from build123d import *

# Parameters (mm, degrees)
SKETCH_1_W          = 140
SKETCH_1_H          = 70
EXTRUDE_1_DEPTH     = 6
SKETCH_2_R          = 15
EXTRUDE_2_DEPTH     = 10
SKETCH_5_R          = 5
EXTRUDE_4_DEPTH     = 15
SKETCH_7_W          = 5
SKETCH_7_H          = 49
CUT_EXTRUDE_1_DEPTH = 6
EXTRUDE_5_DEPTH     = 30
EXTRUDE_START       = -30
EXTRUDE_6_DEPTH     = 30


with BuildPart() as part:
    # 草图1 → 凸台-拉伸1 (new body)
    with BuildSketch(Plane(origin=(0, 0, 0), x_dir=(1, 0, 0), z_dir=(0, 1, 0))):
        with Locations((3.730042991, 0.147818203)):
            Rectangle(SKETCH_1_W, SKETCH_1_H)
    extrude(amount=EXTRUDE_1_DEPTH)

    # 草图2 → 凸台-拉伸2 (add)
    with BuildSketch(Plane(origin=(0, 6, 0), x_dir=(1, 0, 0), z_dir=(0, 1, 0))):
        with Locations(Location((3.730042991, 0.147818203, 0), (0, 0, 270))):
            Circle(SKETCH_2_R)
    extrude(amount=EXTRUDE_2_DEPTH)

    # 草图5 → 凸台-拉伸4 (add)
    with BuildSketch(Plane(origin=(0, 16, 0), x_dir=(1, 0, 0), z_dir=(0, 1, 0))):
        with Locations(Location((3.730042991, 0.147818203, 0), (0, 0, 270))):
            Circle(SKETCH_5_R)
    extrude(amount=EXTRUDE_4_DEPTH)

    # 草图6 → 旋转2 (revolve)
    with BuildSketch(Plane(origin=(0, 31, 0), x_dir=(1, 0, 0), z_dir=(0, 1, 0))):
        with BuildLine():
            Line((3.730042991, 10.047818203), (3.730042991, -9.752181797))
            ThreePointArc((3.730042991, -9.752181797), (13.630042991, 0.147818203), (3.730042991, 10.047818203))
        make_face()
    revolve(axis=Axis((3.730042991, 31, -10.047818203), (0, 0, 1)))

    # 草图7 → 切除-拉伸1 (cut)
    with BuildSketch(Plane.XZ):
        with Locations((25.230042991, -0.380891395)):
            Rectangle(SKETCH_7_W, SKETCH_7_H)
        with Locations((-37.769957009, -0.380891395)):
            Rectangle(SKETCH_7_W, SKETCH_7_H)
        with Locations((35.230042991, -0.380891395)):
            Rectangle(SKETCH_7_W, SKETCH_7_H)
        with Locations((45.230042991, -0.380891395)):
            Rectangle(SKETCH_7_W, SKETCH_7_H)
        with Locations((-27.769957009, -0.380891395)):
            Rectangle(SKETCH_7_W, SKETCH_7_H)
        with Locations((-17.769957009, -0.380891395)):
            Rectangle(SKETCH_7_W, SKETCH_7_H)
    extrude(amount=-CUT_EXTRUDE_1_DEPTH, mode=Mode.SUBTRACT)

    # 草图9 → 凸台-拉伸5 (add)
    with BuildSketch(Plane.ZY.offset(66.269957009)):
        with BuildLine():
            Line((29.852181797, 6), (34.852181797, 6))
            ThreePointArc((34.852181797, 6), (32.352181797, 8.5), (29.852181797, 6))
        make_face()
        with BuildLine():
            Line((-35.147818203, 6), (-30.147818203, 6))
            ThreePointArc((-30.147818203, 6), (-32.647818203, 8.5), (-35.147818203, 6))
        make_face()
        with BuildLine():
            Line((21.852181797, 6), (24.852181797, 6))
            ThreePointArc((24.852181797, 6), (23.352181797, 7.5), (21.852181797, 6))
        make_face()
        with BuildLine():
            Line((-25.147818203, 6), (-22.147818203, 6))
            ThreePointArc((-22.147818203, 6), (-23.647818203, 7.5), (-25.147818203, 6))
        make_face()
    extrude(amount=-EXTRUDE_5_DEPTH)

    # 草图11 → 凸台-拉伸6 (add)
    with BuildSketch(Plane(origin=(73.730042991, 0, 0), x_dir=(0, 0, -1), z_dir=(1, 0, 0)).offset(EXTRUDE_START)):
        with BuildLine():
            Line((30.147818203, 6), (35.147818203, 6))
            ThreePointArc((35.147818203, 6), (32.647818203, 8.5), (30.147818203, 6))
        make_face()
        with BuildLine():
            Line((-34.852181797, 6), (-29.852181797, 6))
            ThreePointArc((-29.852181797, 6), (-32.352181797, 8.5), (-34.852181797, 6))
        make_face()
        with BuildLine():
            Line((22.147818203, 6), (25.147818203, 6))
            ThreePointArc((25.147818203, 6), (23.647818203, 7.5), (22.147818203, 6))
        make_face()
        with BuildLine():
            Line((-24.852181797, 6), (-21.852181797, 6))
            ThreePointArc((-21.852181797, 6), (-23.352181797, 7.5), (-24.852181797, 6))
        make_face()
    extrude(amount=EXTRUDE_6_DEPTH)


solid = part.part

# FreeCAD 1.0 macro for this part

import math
import FreeCAD as App
import Part
import Sketcher

V = App.Vector


def add_polygon(sketch, points):
    """Adds a closed chain of lines whose ends are joined by coincident constraints."""
    first, n = sketch.GeometryCount, len(points)
    for a, b in zip(points, points[1:] + points[:1]):
        sketch.addGeometry(Part.LineSegment(App.Vector(*a, 0), App.Vector(*b, 0)), False)
    for i in range(n):
        sketch.addConstraint(Sketcher.Constraint("Coincident", first + i, 2, first + (i + 1) % n, 1))

doc = App.newDocument("Part")
body = doc.addObject("PartDesign::Body", "Body")

# Sketch on XZ plane
sketch1 = body.newObject("Sketcher::SketchObject", "Sketch")
sketch1.AttachmentSupport = (doc.getObject("XZ_Plane"), [""])
sketch1.MapMode = "FlatFace"
add_polygon(sketch1, [(-66, -35), (-66, 35), (74, 35), (74, -35)])  # lines 0-3
sketch1.addConstraint(Sketcher.Constraint("Vertical", 0))
sketch1.addConstraint(Sketcher.Constraint("Horizontal", 1))
sketch1.addConstraint(Sketcher.Constraint("Vertical", 2))
sketch1.addConstraint(Sketcher.Constraint("Horizontal", 3))
sketch1.addConstraint(Sketcher.Constraint("DistanceX", 1, 1, 1, 2, 140.0))
sketch1.addConstraint(Sketcher.Constraint("DistanceY", 0, 1, 0, 2, 70.0))
sketch1.addConstraint(Sketcher.Constraint("DistanceY", -1, 1, 0, 2, 34.852182))
sketch1.addConstraint(Sketcher.Constraint("DistanceX", 0, 2, -1, 1, 66.269957))
pad1 = body.newObject("PartDesign::Pad", "Pad")
pad1.Profile = sketch1
pad1.Length = 6
pad1.Reversed = True

# Sketch on XZ plane
sketch2 = body.newObject("Sketcher::SketchObject", "Sketch001")
sketch2.AttachmentSupport = (doc.getObject("XZ_Plane"), [""])
sketch2.MapMode = "FlatFace"
sketch2.AttachmentOffset = App.Placement(V(0, 0, -6), App.Rotation())
sketch2.addGeometry(Part.Circle(V(4, 0, 0), V(0, 0, 1), 15), False)
sketch2.addConstraint(Sketcher.Constraint("Diameter", 0, 30.0))
sketch2.addConstraint(Sketcher.Constraint("DistanceY", 0, 3, -1, 1, 0.147818))
sketch2.addConstraint(Sketcher.Constraint("DistanceX", -1, 1, 0, 3, 3.730043))
pad2 = body.newObject("PartDesign::Pad", "Pad001")
pad2.Profile = sketch2
pad2.Length = 10
pad2.Reversed = True

# Sketch on XZ plane
sketch3 = body.newObject("Sketcher::SketchObject", "Sketch002")
sketch3.AttachmentSupport = (doc.getObject("XZ_Plane"), [""])
sketch3.MapMode = "FlatFace"
sketch3.AttachmentOffset = App.Placement(V(0, 0, -16), App.Rotation())
sketch3.addGeometry(Part.Circle(V(4, 0, 0), V(0, 0, 1), 5), False)
sketch3.addConstraint(Sketcher.Constraint("Diameter", 0, 10.0))
sketch3.addConstraint(Sketcher.Constraint("DistanceY", 0, 3, -1, 1, 0.147818))
sketch3.addConstraint(Sketcher.Constraint("DistanceX", -1, 1, 0, 3, 3.730043))
pad3 = body.newObject("PartDesign::Pad", "Pad002")
pad3.Profile = sketch3
pad3.Length = 15
pad3.Reversed = True

# Sketch on XZ plane
sketch4 = body.newObject("Sketcher::SketchObject", "Sketch003")
sketch4.AttachmentSupport = (doc.getObject("XZ_Plane"), [""])
sketch4.MapMode = "FlatFace"
sketch4.AttachmentOffset = App.Placement(V(0, 0, -31), App.Rotation())
sketch4.addGeometry(Part.LineSegment(V(4, -10, 0), V(4, 10, 0)), False)
sketch4.addGeometry(Part.ArcOfCircle(Part.Circle(V(4, 0, 0), V(0, 0, 1), 10), math.radians(-90), math.radians(90)), False)
sketch4.addGeometry(Part.LineSegment(V(4, -10, 0), V(4, 10, 0)), True)  # axis
sketch4.addConstraint(Sketcher.Constraint("Coincident", 0, 1, 1, 1))
sketch4.addConstraint(Sketcher.Constraint("Coincident", 1, 2, 0, 2))
sketch4.addConstraint(Sketcher.Constraint("Vertical", 0))
sketch4.addConstraint(Sketcher.Constraint("Vertical", 2))
sketch4.addConstraint(Sketcher.Constraint("Coincident", 2, 1, 0, 1))
sketch4.addConstraint(Sketcher.Constraint("Vertical", 1, 3, 0, 1))
sketch4.addConstraint(Sketcher.Constraint("Equal", 0, 2))
sketch4.addConstraint(Sketcher.Constraint("Radius", 1, 9.9))
sketch4.addConstraint(Sketcher.Constraint("DistanceY", 1, 3, -1, 1, 0.147818))
sketch4.addConstraint(Sketcher.Constraint("DistanceX", -1, 1, 1, 3, 3.730043))
revolution = body.newObject("PartDesign::Revolution", "Revolution")
revolution.Profile = sketch4
revolution.ReferenceAxis = (sketch4, ["Axis0"])
revolution.Angle = 360

# Sketch on XZ plane
sketch5 = body.newObject("Sketcher::SketchObject", "Sketch004")
sketch5.AttachmentSupport = (doc.getObject("XZ_Plane"), [""])
sketch5.MapMode = "FlatFace"
add_polygon(sketch5, [(22.7, 24.1), (22.7, -24.9), (27.7, -24.9), (27.7, 24.1)])  # lines 0-3
add_polygon(sketch5, [(-40.3, 24.1), (-40.3, -24.9), (-35.3, -24.9), (-35.3, 24.1)])  # lines 4-7
add_polygon(sketch5, [(32.7, 24.1), (32.7, -24.9), (37.7, -24.9), (37.7, 24.1)])  # lines 8-11
add_polygon(sketch5, [(42.7, 24.1), (42.7, -24.9), (47.7, -24.9), (47.7, 24.1)])  # lines 12-15
add_polygon(sketch5, [(-30.3, 24.1), (-30.3, -24.9), (-25.3, -24.9), (-25.3, 24.1)])  # lines 16-19
add_polygon(sketch5, [(-20.3, 24.1), (-20.3, -24.9), (-15.3, -24.9), (-15.3, 24.1)])  # lines 20-23
sketch5.addConstraint(Sketcher.Constraint("Vertical", 0))
sketch5.addConstraint(Sketcher.Constraint("Horizontal", 1))
sketch5.addConstraint(Sketcher.Constraint("Vertical", 2))
sketch5.addConstraint(Sketcher.Constraint("Horizontal", 3))
sketch5.addConstraint(Sketcher.Constraint("Vertical", 4))
sketch5.addConstraint(Sketcher.Constraint("Horizontal", 5))
sketch5.addConstraint(Sketcher.Constraint("Vertical", 6))
sketch5.addConstraint(Sketcher.Constraint("Horizontal", 7))
sketch5.addConstraint(Sketcher.Constraint("Vertical", 8))
sketch5.addConstraint(Sketcher.Constraint("Horizontal", 9))
sketch5.addConstraint(Sketcher.Constraint("Vertical", 10))
sketch5.addConstraint(Sketcher.Constraint("Horizontal", 11))
sketch5.addConstraint(Sketcher.Constraint("Vertical", 12))
sketch5.addConstraint(Sketcher.Constraint("Horizontal", 13))
sketch5.addConstraint(Sketcher.Constraint("Vertical", 14))
sketch5.addConstraint(Sketcher.Constraint("Horizontal", 15))
sketch5.addConstraint(Sketcher.Constraint("Vertical", 16))
sketch5.addConstraint(Sketcher.Constraint("Horizontal", 17))
sketch5.addConstraint(Sketcher.Constraint("Vertical", 18))
sketch5.addConstraint(Sketcher.Constraint("Horizontal", 19))
sketch5.addConstraint(Sketcher.Constraint("Vertical", 20))
sketch5.addConstraint(Sketcher.Constraint("Horizontal", 21))
sketch5.addConstraint(Sketcher.Constraint("Vertical", 22))
sketch5.addConstraint(Sketcher.Constraint("Horizontal", 23))
sketch5.addConstraint(Sketcher.Constraint("Horizontal", 1, 2, 4, 2))
sketch5.addConstraint(Sketcher.Constraint("Horizontal", 3, 2, 6, 2))
sketch5.addConstraint(Sketcher.Constraint("Horizontal", 5, 2, 8, 2))
sketch5.addConstraint(Sketcher.Constraint("Horizontal", 7, 2, 10, 2))
sketch5.addConstraint(Sketcher.Constraint("Horizontal", 9, 2, 12, 2))
sketch5.addConstraint(Sketcher.Constraint("Horizontal", 11, 2, 14, 2))
sketch5.addConstraint(Sketcher.Constraint("Horizontal", 13, 2, 16, 2))
sketch5.addConstraint(Sketcher.Constraint("Horizontal", 15, 2, 18, 2))
sketch5.addConstraint(Sketcher.Constraint("Horizontal", 17, 2, 20, 2))
sketch5.addConstraint(Sketcher.Constraint("Horizontal", 19, 2, 22, 2))
sketch5.addConstraint(Sketcher.Constraint("Equal", 3, 5))
sketch5.addConstraint(Sketcher.Constraint("Equal", 7, 9))
sketch5.addConstraint(Sketcher.Constraint("Equal", 11, 13))
sketch5.addConstraint(Sketcher.Constraint("Equal", 15, 17))
sketch5.addConstraint(Sketcher.Constraint("Equal", 19, 21))
sketch5.addConstraint(Sketcher.Constraint("DistanceX", 1, 1, 1, 2, 5.0))
sketch5.addConstraint(Sketcher.Constraint("DistanceY", 0, 2, 0, 1, 49.0))
sketch5.addConstraint(Sketcher.Constraint("DistanceX", 4, 2, 0, 2, 63.0))
sketch5.addConstraint(Sketcher.Constraint("DistanceX", 1, 2, 8, 2, 5.0))
sketch5.addConstraint(Sketcher.Constraint("DistanceX", 9, 2, 12, 2, 5.0))
sketch5.addConstraint(Sketcher.Constraint("DistanceX", 5, 2, 16, 2, 5.0))
sketch5.addConstraint(Sketcher.Constraint("DistanceX", 17, 2, 20, 2, 5.0))
sketch5.addConstraint(Sketcher.Constraint("DistanceY", 0, 2, -1, 1, 24.880891))
sketch5.addConstraint(Sketcher.Constraint("DistanceX", -1, 1, 0, 2, 22.730043))
pocket1 = body.newObject("PartDesign::Pocket", "Pocket")
pocket1.Profile = sketch5
pocket1.Length = 6

# Sketch on YZ plane
sketch6 = body.newObject("Sketcher::SketchObject", "Sketch005")
sketch6.AttachmentSupport = (doc.getObject("YZ_Plane"), [""])
sketch6.MapMode = "FlatFace"
sketch6.AttachmentOffset = App.Placement(V(0, 0, -66.269957), App.Rotation())
sketch6.addGeometry(Part.LineSegment(V(6, 29.9, 0), V(6, 34.9, 0)), False)
sketch6.addGeometry(Part.ArcOfCircle(Part.Circle(V(6, 32.4, 0), V(0, 0, 1), 2.5), math.radians(-90), math.radians(90)), False)
sketch6.addGeometry(Part.LineSegment(V(6, -35.1, 0), V(6, -30.1, 0)), False)
sketch6.addGeometry(Part.ArcOfCircle(Part.Circle(V(6, -32.6, 0), V(0, 0, 1), 2.5), math.radians(-90), math.radians(90)), False)
sketch6.addGeometry(Part.LineSegment(V(6, 21.9, 0), V(6, 24.9, 0)), False)
sketch6.addGeometry(Part.ArcOfCircle(Part.Circle(V(6, 23.4, 0), V(0, 0, 1), 1.5), math.radians(-90), math.radians(90)), False)
sketch6.addGeometry(Part.LineSegment(V(6, -25.1, 0), V(6, -22.1, 0)), False)
sketch6.addGeometry(Part.ArcOfCircle(Part.Circle(V(6, -23.6, 0), V(0, 0, 1), 1.5), math.radians(-90), math.radians(90)), False)
sketch6.addConstraint(Sketcher.Constraint("Coincident", 0, 1, 1, 1))
sketch6.addConstraint(Sketcher.Constraint("Coincident", 1, 2, 0, 2))
sketch6.addConstraint(Sketcher.Constraint("Coincident", 2, 1, 3, 1))
sketch6.addConstraint(Sketcher.Constraint("Coincident", 3, 2, 2, 2))
sketch6.addConstraint(Sketcher.Constraint("Coincident", 4, 1, 5, 1))
sketch6.addConstraint(Sketcher.Constraint("Coincident", 5, 2, 4, 2))
sketch6.addConstraint(Sketcher.Constraint("Coincident", 6, 1, 7, 1))
sketch6.addConstraint(Sketcher.Constraint("Coincident", 7, 2, 6, 2))
sketch6.addConstraint(Sketcher.Constraint("Vertical", 0))
sketch6.addConstraint(Sketcher.Constraint("Vertical", 2))
sketch6.addConstraint(Sketcher.Constraint("Vertical", 4))
sketch6.addConstraint(Sketcher.Constraint("Vertical", 6))
sketch6.addConstraint(Sketcher.Constraint("Equal", 1, 3))
sketch6.addConstraint(Sketcher.Constraint("Equal", 5, 7))
sketch6.addConstraint(Sketcher.Constraint("Vertical", 1, 3, 3, 3))
sketch6.addConstraint(Sketcher.Constraint("Vertical", 3, 3, 5, 3))
sketch6.addConstraint(Sketcher.Constraint("Vertical", 5, 3, 7, 3))
sketch6.addConstraint(Sketcher.Constraint("Vertical", 7, 3, 0, 1))
sketch6.addConstraint(Sketcher.Constraint("Vertical", 1, 2, 2, 1))
sketch6.addConstraint(Sketcher.Constraint("Vertical", 3, 2, 4, 1))
sketch6.addConstraint(Sketcher.Constraint("Vertical", 5, 2, 6, 1))
sketch6.addConstraint(Sketcher.Constraint("Radius", 1, 2.5))
sketch6.addConstraint(Sketcher.Constraint("Radius", 5, 1.5))
sketch6.addConstraint(Sketcher.Constraint("DistanceX", -1, 1, 1, 3, 6.0))
sketch6.addConstraint(Sketcher.Constraint("DistanceY", 3, 3, 1, 3, 65.0))
sketch6.addConstraint(Sketcher.Constraint("DistanceY", 5, 3, 1, 3, 9.0))
sketch6.addConstraint(Sketcher.Constraint("DistanceY", 3, 3, 7, 3, 9.0))
sketch6.addConstraint(Sketcher.Constraint("DistanceY", -1, 1, 1, 3, 32.352182))
pad4 = body.newObject("PartDesign::Pad", "Pad003")
pad4.Profile = sketch6
pad4.Length = 30

# Sketch on YZ plane
sketch7 = body.newObject("Sketcher::SketchObject", "Sketch006")
sketch7.AttachmentSupport = (doc.getObject("YZ_Plane"), [""])
sketch7.MapMode = "FlatFace"
sketch7.AttachmentOffset = App.Placement(V(0, 0, 43.730043), App.Rotation())
sketch7.addGeometry(Part.LineSegment(V(6, -30.1, 0), V(6, -35.1, 0)), False)
sketch7.addGeometry(Part.ArcOfCircle(Part.Circle(V(6, -32.6, 0), V(0, 0, 1), 2.5), math.radians(-90), math.radians(90)), False)
sketch7.addGeometry(Part.LineSegment(V(6, 34.9, 0), V(6, 29.9, 0)), False)
sketch7.addGeometry(Part.ArcOfCircle(Part.Circle(V(6, 32.4, 0), V(0, 0, 1), 2.5), math.radians(-90), math.radians(90)), False)
sketch7.addGeometry(Part.LineSegment(V(6, -22.1, 0), V(6, -25.1, 0)), False)
sketch7.addGeometry(Part.ArcOfCircle(Part.Circle(V(6, -23.6, 0), V(0, 0, 1), 1.5), math.radians(-90), math.radians(90)), False)
sketch7.addGeometry(Part.LineSegment(V(6, 24.9, 0), V(6, 21.9, 0)), False)
sketch7.addGeometry(Part.ArcOfCircle(Part.Circle(V(6, 23.4, 0), V(0, 0, 1), 1.5), math.radians(-90), math.radians(90)), False)
sketch7.addConstraint(Sketcher.Constraint("Coincident", 0, 1, 1, 2))
sketch7.addConstraint(Sketcher.Constraint("Coincident", 1, 1, 0, 2))
sketch7.addConstraint(Sketcher.Constraint("Coincident", 2, 1, 3, 2))
sketch7.addConstraint(Sketcher.Constraint("Coincident", 3, 1, 2, 2))
sketch7.addConstraint(Sketcher.Constraint("Coincident", 4, 1, 5, 2))
sketch7.addConstraint(Sketcher.Constraint("Coincident", 5, 1, 4, 2))
sketch7.addConstraint(Sketcher.Constraint("Coincident", 6, 1, 7, 2))
sketch7.addConstraint(Sketcher.Constraint("Coincident", 7, 1, 6, 2))
sketch7.addConstraint(Sketcher.Constraint("Vertical", 0))
sketch7.addConstraint(Sketcher.Constraint("Vertical", 2))
sketch7.addConstraint(Sketcher.Constraint("Vertical", 4))
sketch7.addConstraint(Sketcher.Constraint("Vertical", 6))
sketch7.addConstraint(Sketcher.Constraint("Equal", 1, 3))
sketch7.addConstraint(Sketcher.Constraint("Equal", 5, 7))
sketch7.addConstraint(Sketcher.Constraint("Vertical", 1, 3, 3, 3))
sketch7.addConstraint(Sketcher.Constraint("Vertical", 3, 3, 5, 3))
sketch7.addConstraint(Sketcher.Constraint("Vertical", 5, 3, 7, 3))
sketch7.addConstraint(Sketcher.Constraint("Vertical", 7, 3, 0, 1))
sketch7.addConstraint(Sketcher.Constraint("Vertical", 1, 1, 2, 1))
sketch7.addConstraint(Sketcher.Constraint("Vertical", 3, 1, 4, 1))
sketch7.addConstraint(Sketcher.Constraint("Vertical", 5, 1, 6, 1))
sketch7.addConstraint(Sketcher.Constraint("Radius", 1, 2.5))
sketch7.addConstraint(Sketcher.Constraint("Radius", 5, 1.5))
sketch7.addConstraint(Sketcher.Constraint("DistanceX", -1, 1, 1, 3, 6.0))
sketch7.addConstraint(Sketcher.Constraint("DistanceY", 1, 3, 3, 3, 65.0))
sketch7.addConstraint(Sketcher.Constraint("DistanceY", 1, 3, 5, 3, 9.0))
sketch7.addConstraint(Sketcher.Constraint("DistanceY", 7, 3, 3, 3, 9.0))
sketch7.addConstraint(Sketcher.Constraint("DistanceY", 1, 3, -1, 1, 32.647818))
pad5 = body.newObject("PartDesign::Pad", "Pad004")
pad5.Profile = sketch7
pad5.Length = 30

doc.recompute()
